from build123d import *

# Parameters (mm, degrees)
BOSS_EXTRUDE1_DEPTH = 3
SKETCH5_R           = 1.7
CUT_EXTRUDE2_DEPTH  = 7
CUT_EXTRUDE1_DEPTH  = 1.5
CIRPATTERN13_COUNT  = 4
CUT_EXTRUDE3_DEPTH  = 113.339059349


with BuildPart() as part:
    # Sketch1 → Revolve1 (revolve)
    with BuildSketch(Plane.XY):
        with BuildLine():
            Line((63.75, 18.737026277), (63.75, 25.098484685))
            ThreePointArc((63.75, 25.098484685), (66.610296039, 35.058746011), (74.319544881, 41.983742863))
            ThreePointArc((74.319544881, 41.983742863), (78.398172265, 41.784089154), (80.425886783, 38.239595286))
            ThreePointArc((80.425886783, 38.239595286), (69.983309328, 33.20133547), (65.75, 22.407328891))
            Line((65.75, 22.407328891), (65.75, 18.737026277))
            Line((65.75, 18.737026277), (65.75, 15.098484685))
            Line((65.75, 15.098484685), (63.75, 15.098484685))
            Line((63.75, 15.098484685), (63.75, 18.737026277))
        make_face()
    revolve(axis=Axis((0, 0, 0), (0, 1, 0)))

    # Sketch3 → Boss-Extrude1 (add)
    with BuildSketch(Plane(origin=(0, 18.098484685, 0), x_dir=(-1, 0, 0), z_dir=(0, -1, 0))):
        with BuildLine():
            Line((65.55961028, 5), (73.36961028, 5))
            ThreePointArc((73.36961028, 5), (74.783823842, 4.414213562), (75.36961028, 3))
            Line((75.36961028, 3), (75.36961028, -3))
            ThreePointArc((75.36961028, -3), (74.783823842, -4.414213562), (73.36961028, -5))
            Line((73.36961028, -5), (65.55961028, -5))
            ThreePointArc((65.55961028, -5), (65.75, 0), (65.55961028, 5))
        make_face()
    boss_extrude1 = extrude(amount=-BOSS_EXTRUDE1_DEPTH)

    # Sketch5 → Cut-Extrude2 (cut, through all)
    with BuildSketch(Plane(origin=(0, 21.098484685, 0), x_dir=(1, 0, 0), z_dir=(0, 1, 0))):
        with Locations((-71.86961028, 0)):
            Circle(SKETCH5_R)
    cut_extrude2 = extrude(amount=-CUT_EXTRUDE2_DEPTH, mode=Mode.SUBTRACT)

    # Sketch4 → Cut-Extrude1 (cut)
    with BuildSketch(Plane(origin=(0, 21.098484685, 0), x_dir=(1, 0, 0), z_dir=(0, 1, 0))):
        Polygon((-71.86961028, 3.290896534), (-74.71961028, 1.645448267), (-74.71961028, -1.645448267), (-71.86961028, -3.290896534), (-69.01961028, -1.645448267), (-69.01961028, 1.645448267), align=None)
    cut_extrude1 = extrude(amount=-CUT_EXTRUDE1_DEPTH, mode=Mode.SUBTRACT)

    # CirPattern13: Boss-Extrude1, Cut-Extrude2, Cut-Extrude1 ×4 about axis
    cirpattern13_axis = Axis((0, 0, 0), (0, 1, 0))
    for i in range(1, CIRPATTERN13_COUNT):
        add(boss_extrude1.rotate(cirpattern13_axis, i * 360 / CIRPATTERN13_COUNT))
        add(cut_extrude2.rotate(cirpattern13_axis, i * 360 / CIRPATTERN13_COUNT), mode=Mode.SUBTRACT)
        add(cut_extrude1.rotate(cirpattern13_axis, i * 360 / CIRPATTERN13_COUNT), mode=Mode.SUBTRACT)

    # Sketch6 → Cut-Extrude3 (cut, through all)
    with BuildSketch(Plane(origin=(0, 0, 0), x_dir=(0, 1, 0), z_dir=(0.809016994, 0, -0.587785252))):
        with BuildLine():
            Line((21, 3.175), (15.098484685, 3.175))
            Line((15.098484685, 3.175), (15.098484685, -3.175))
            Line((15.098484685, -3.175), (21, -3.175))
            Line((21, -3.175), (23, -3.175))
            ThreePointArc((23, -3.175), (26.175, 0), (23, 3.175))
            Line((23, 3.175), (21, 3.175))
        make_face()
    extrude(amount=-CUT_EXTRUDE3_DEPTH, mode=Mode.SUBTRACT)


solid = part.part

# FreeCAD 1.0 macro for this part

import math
import FreeCAD as App
import Part
import Sketcher
from FreeCAD import Vector
Q = App.Units.Quantity

doc = App.newDocument("Part")
params = doc.addObject("Spreadsheet::Sheet", "Params")
for row, (alias, value) in enumerate([
    ("sketch1_width", "2 mm"),
    ("sketch1_height", "10 mm"),
    ("sketch1_radius", "4.25 mm"),
    ("revolution_angle", "360 deg"),
    ("sketch2_radius", "2 mm"),
    ("sketch2_height", "6 mm"),
    ("sketch2_radius2", "65.75 mm"),
    ("sketch2_width", "7.81 mm"),
    ("pad1_length", "3 mm"),
    ("sketch3_diameter", "3.4 mm"),
    ("pocket2_length", "1.5 mm"),
], start=1):
    params.set(f"A{row}", alias)
    params.set(f"B{row}", "=" + value)
    params.setAlias(f"B{row}", alias)

body = doc.addObject("PartDesign::Body", "Body")

sketch1 = doc.addObject("Sketcher::SketchObject", "Sketch")
body.addObject(sketch1)
sketch1.AttachmentSupport = (doc.XY_Plane, [""])
sketch1.MapMode = "FlatFace"
sketch1.addGeometry([
    Part.ArcOfCircle(Part.Circle(Vector(82.5, 25.1, 0), Vector(0, 0, 1), 18.8), math.radians(116), math.radians(180)),
    Part.LineSegment(Vector(63.8, 25.1, 0), Vector(63.8, 15.1, 0)),
    Part.LineSegment(Vector(63.8, 15.1, 0), Vector(65.8, 15.1, 0)),
    Part.LineSegment(Vector(65.8, 15.1, 0), Vector(65.8, 22.4, 0)),
    Part.ArcOfCircle(Part.Circle(Vector(81.6, 22.4, 0), Vector(0, 0, 1), 15.9), math.radians(94), math.radians(180)),
    Part.ArcOfCircle(Part.Circle(Vector(76.2, 38.2, 0), Vector(0, 0, 1), 4.2), math.radians(1), math.radians(116)),
], False)
sketch1.addConstraint([
    Sketcher.Constraint("Tangent", 0, 2, 1, 1),
    Sketcher.Constraint("Coincident", 1, 2, 2, 1),
    Sketcher.Constraint("Coincident", 2, 2, 3, 1),
    Sketcher.Constraint("Tangent", 3, 2, 4, 2),
    Sketcher.Constraint("Coincident", 4, 1, 5, 1),
    Sketcher.Constraint("Tangent", 5, 2, 0, 1),
    Sketcher.Constraint("Vertical", 1),
    Sketcher.Constraint("Horizontal", 2),
    Sketcher.Constraint("Vertical", 3),
    Sketcher.Constraint("DistanceX", 2, 1, 2, 2, 2.0),
    Sketcher.Constraint("DistanceY", 1, 2, 1, 1, 10.0),
    Sketcher.Constraint("Radius", 5, 4.25),
    Sketcher.Constraint("Radius", 0, 18.7722),
    Sketcher.Constraint("DistanceX", -1, 1, 0, 2, 63.75),
    Sketcher.Constraint("Radius", 4, 15.877825),
    Sketcher.Constraint("DistanceY", 5, 3, 5, 2, 3.822799),
    Sketcher.Constraint("DistanceY", 3, 1, 3, 2, 7.308844),
    Sketcher.Constraint("DistanceY", -1, 1, 4, 3, 22.407329),
])
sketch1.setExpression("Constraints[9]", "Params.sketch1_width")
sketch1.setExpression("Constraints[10]", "Params.sketch1_height")
sketch1.setExpression("Constraints[11]", "Params.sketch1_radius")
revolution = doc.addObject("PartDesign::Revolution", "Revolution")
body.addObject(revolution)
revolution.Profile = sketch1
revolution.ReferenceAxis = (sketch1, ["V_Axis"])
revolution.setExpression("Angle", "Params.revolution_angle")

sketch2 = doc.addObject("Sketcher::SketchObject", "Sketch001")
body.addObject(sketch2)
sketch2.AttachmentSupport = (doc.XZ_Plane, [""])
sketch2.MapMode = "FlatFace"
sketch2.AttachmentOffset = App.Placement(Vector(0, 0, -18.098485), App.Rotation())
sketch2.addGeometry([
    Part.LineSegment(Vector(-73.4, -5, 0), Vector(-65.6, -5, 0)),
    Part.ArcOfCircle(Part.Circle(Vector(0, 0, 0), Vector(0, 0, 1), 65.8), math.radians(175.64), math.radians(184.36)),
    Part.LineSegment(Vector(-65.6, 5, 0), Vector(-73.4, 5, 0)),
    Part.ArcOfCircle(Part.Circle(Vector(-73.4, 3, 0), Vector(0, 0, 1), 2), math.radians(90), math.radians(180)),
    Part.LineSegment(Vector(-75.4, 3, 0), Vector(-75.4, -3, 0)),
    Part.ArcOfCircle(Part.Circle(Vector(-73.4, -3, 0), Vector(0, 0, 1), 2), math.radians(-180), math.radians(-90)),
], False)
sketch2.addConstraint([
    Sketcher.Constraint("Coincident", 0, 2, 1, 2),
    Sketcher.Constraint("Coincident", 1, 1, 2, 1),
    Sketcher.Constraint("Tangent", 2, 2, 3, 1),
    Sketcher.Constraint("Tangent", 3, 2, 4, 1),
    Sketcher.Constraint("Tangent", 4, 2, 5, 1),
    Sketcher.Constraint("Tangent", 5, 2, 0, 1),
    Sketcher.Constraint("Horizontal", 0),
    Sketcher.Constraint("Horizontal", 2),
    Sketcher.Constraint("Vertical", 4),
    Sketcher.Constraint("Coincident", 1, 3, -1, 1),
    Sketcher.Constraint("Equal", 3, 5),
    Sketcher.Constraint("Vertical", 0, 2, 1, 1),
    Sketcher.Constraint("Radius", 3, 2.0),
    Sketcher.Constraint("DistanceY", 4, 2, 4, 1, 6.0),
    Sketcher.Constraint("Radius", 1, 65.75),
    Sketcher.Constraint("DistanceX", 0, 1, 0, 2, 7.81),
])
sketch2.setExpression("Constraints[12]", "Params.sketch2_radius")
sketch2.setExpression("Constraints[13]", "Params.sketch2_height")
sketch2.setExpression("Constraints[14]", "Params.sketch2_radius2")
sketch2.setExpression("Constraints[15]", "Params.sketch2_width")
pad1 = doc.addObject("PartDesign::Pad", "Pad")
body.addObject(pad1)
pad1.Profile = sketch2
pad1.setExpression("Length", "Params.pad1_length")
pad1.Reversed = True

sketch3 = doc.addObject("Sketcher::SketchObject", "Sketch002")
body.addObject(sketch3)
sketch3.AttachmentSupport = (doc.XZ_Plane, [""])
sketch3.MapMode = "FlatFace"
sketch3.AttachmentOffset = App.Placement(Vector(0, 0, -21.098485), App.Rotation())
sketch3.addGeometry(Part.Circle(Vector(-71.9, 0, 0), Vector(0, 0, 1), 1.7), False)
sketch3.addConstraint([
    Sketcher.Constraint("PointOnObject", 0, 3, -1),
    Sketcher.Constraint("Diameter", 0, 3.4),
    Sketcher.Constraint("DistanceX", 0, 3, -1, 1, 71.86961),
])
sketch3.setExpression("Constraints[1]", "Params.sketch3_diameter")
pocket1 = doc.addObject("PartDesign::Pocket", "Pocket")
body.addObject(pocket1)
pocket1.Profile = sketch3
pocket1.Type = "ThroughAll"
pocket1.Reversed = True

sketch4 = doc.addObject("Sketcher::SketchObject", "Sketch003")
body.addObject(sketch4)
sketch4.AttachmentSupport = (doc.XZ_Plane, [""])
sketch4.MapMode = "FlatFace"
sketch4.AttachmentOffset = App.Placement(Vector(0, 0, -21.098485), App.Rotation())
sketch4.addGeometry([
    Part.LineSegment(Vector(-71.9, -3.3, 0), Vector(-74.7, -1.6, 0)),
    Part.LineSegment(Vector(-74.7, -1.6, 0), Vector(-74.7, 1.6, 0)),
    Part.LineSegment(Vector(-74.7, 1.6, 0), Vector(-71.9, 3.3, 0)),
    Part.LineSegment(Vector(-71.9, 3.3, 0), Vector(-69, 1.6, 0)),
    Part.LineSegment(Vector(-69, 1.6, 0), Vector(-69, -1.6, 0)),
    Part.LineSegment(Vector(-69, -1.6, 0), Vector(-71.9, -3.3, 0)),
], False)
sketch4.addConstraint([
    Sketcher.Constraint("Coincident", 0, 2, 1, 1),
    Sketcher.Constraint("Coincident", 1, 2, 2, 1),
    Sketcher.Constraint("Coincident", 2, 2, 3, 1),
    Sketcher.Constraint("Coincident", 3, 2, 4, 1),
    Sketcher.Constraint("Coincident", 4, 2, 5, 1),
    Sketcher.Constraint("Coincident", 5, 2, 0, 1),
    Sketcher.Constraint("Vertical", 1),
    Sketcher.Constraint("Vertical", 4),
    Sketcher.Constraint("Symmetric", 2, 2, 5, 2, -1),
    Sketcher.Constraint("Parallel", 0, 3),
    Sketcher.Constraint("Parallel", 2, 5),
    Sketcher.Constraint("Horizontal", 1, 2, 3, 2),
    Sketcher.Constraint("Horizontal", 0, 2, 4, 2),
    Sketcher.Constraint("Angle", 0, Q("150 deg")),
    Sketcher.Constraint("DistanceX", 1, 2, 3, 2, 5.7),
    Sketcher.Constraint("DistanceY", 1, 1, 1, 2, 3.290897),
    Sketcher.Constraint("DistanceX", 0, 2, -1, 1, 74.71961),
])
pocket2 = doc.addObject("PartDesign::Pocket", "Pocket001")
body.addObject(pocket2)
pocket2.Profile = sketch4
pocket2.setExpression("Length", "Params.pocket2_length")
pocket2.Reversed = True
doc.recompute()

polarpattern = doc.addObject("PartDesign::PolarPattern", "PolarPattern")
body.addObject(polarpattern)
polarpattern.Originals = [pad1, pocket1, pocket2]
polarpattern.Axis = (doc.Y_Axis, [""])
polarpattern.Angle = 360
polarpattern.Occurrences = 4
body.Tip = polarpattern

sketch5 = doc.addObject("Sketcher::SketchObject", "Sketch004")
body.addObject(sketch5)
sketch5.Placement = App.Placement(Vector(0, 0, 0), App.Rotation(Vector(0, 1, 0), Vector(0.587785252, 0, 0.809016994), Vector(0.809016994, 0, -0.587785252), "ZXY"))
sketch5.addGeometry([
    Part.LineSegment(Vector(15.1, 3.2, 0), Vector(15.1, -3.2, 0)),
    Part.LineSegment(Vector(15.1, -3.2, 0), Vector(23, -3.2, 0)),
    Part.ArcOfCircle(Part.Circle(Vector(23, 0, 0), Vector(0, 0, 1), 3.2), math.radians(-90), math.radians(90)),
    Part.LineSegment(Vector(23, 3.2, 0), Vector(15.1, 3.2, 0)),
], False)
sketch5.addConstraint([
    Sketcher.Constraint("Coincident", 0, 2, 1, 1),
    Sketcher.Constraint("Tangent", 1, 2, 2, 1),
    Sketcher.Constraint("Tangent", 2, 2, 3, 1),
    Sketcher.Constraint("Coincident", 3, 2, 0, 1),
    Sketcher.Constraint("Vertical", 0),
    Sketcher.Constraint("Horizontal", 1),
    Sketcher.Constraint("Horizontal", 3),
    Sketcher.Constraint("PointOnObject", 2, 3, -1),
    Sketcher.Constraint("DistanceX", -1, 1, 2, 3, 23.0),
    Sketcher.Constraint("Radius", 2, 3.175),
    Sketcher.Constraint("DistanceX", 1, 1, 1, 2, 7.901515),
])
pocket3 = doc.addObject("PartDesign::Pocket", "Pocket002")
body.addObject(pocket3)
pocket3.Profile = sketch5
pocket3.Type = "ThroughAll"

doc.recompute()
